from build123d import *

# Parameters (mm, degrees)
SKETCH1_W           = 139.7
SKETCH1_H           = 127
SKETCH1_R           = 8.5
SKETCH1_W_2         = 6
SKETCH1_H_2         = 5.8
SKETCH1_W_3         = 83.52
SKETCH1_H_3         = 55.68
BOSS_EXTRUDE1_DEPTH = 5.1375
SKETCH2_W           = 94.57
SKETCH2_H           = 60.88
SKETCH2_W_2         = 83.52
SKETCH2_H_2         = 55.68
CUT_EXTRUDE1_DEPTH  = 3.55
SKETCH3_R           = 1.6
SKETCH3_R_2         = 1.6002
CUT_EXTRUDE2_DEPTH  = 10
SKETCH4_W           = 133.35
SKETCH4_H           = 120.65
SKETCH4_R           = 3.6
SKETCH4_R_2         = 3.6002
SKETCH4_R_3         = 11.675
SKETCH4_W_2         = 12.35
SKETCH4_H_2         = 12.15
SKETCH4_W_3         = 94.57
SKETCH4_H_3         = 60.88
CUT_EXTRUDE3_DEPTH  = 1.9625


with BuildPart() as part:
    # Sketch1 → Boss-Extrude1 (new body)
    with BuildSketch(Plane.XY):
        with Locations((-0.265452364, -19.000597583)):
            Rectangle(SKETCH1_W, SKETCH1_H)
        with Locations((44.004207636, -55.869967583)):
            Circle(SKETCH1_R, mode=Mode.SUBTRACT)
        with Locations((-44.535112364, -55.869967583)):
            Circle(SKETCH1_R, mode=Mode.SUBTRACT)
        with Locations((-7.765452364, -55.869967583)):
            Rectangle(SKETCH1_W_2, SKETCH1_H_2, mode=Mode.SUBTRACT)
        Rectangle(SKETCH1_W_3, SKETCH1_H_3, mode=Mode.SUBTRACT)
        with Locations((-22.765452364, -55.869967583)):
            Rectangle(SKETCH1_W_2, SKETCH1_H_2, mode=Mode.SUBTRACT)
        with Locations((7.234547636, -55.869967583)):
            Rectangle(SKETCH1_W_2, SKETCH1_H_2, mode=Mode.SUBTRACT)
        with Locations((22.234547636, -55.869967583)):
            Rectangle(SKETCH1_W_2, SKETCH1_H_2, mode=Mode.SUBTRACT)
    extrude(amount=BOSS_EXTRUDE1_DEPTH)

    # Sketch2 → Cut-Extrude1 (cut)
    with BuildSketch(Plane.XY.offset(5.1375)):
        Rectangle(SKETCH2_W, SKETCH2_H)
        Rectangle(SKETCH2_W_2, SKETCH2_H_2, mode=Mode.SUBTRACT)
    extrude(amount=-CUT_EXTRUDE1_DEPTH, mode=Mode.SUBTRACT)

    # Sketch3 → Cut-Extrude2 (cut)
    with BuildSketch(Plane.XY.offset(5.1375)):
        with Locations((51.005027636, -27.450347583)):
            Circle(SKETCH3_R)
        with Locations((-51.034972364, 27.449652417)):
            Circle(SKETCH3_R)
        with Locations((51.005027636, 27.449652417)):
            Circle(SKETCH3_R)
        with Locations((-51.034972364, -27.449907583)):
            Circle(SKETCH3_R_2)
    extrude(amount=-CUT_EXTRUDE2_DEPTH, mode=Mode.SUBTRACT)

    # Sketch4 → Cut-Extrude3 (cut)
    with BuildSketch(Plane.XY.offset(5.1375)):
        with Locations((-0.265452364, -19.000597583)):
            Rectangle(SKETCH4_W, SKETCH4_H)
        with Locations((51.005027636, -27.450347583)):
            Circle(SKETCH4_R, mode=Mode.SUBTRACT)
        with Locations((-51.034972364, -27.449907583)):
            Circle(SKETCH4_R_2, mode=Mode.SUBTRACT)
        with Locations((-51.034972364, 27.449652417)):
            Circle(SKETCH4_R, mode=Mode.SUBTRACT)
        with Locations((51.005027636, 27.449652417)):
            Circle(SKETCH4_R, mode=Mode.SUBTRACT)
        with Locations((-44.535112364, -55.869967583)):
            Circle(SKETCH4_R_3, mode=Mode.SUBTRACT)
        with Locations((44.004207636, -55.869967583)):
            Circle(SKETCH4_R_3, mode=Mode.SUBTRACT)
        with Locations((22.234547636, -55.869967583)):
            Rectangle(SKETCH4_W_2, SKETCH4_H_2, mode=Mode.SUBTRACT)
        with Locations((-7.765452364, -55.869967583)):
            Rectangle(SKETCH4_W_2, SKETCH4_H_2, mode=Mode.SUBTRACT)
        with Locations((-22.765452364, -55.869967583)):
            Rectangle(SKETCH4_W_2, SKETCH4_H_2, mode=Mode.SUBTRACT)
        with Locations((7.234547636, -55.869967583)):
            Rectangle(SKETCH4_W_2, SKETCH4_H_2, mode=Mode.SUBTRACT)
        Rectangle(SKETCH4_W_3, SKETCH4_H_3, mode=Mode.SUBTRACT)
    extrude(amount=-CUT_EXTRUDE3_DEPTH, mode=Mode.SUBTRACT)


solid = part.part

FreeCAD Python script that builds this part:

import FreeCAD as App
import Part
import Sketcher
from FreeCAD import Vector
Q = App.Units.Quantity

doc = App.newDocument("Part")
params = doc.addObject("Spreadsheet::Sheet", "Params")
for row, (alias, value) in enumerate([
    ("sketch1_diameter", "17 mm"),
    ("sketch1_width", "6 mm"),
    ("sketch1_height", "127 mm"),
    ("sketch1_width2", "139.7 mm"),
    ("sketch1_height2", "5.8 mm"),
    ("pad1_length", "5.1375 mm"),
    ("sketch2_width", "94.57 mm"),
    ("sketch2_width2", "83.52 mm"),
    ("sketch2_height", "60.88 mm"),
    ("sketch2_height2", "55.68 mm"),
    ("pocket1_length", "3.55 mm"),
    ("sketch3_diameter", "3.2 mm"),
    ("pocket2_length", "10 mm"),
    ("sketch4_diameter", "7.2 mm"),
    ("sketch4_diameter2", "23.35 mm"),
    ("sketch4_width", "133.35 mm"),
    ("sketch4_width2", "12.35 mm"),
    ("sketch4_width3", "94.57 mm"),
    ("pocket3_length", "1.9625 mm"),
], start=1):
    params.set(f"A{row}", alias)
    params.set(f"B{row}", "=" + value)
    params.setAlias(f"B{row}", alias)

body = doc.addObject("PartDesign::Body", "Body")

# Sketch on XY plane
sketch1 = body.newObject("Sketcher::SketchObject", "Sketch")
sketch1.AttachmentSupport = (doc.getObject("XY_Plane"), [""])
sketch1.MapMode = "FlatFace"
sketch1.addGeometry([
    Part.LineSegment(Vector(-70.115452, 44.499402, 0), Vector(-70.115452, -82.500598, 0)),  # 0
    Part.LineSegment(Vector(-70.115452, -82.500598, 0), Vector(69.584548, -82.500598, 0)),  # 1
    Part.LineSegment(Vector(69.584548, -82.500598, 0), Vector(69.584548, 44.499402, 0)),  # 2
    Part.LineSegment(Vector(69.584548, 44.499402, 0), Vector(-70.115452, 44.499402, 0)),  # 3
    Part.Circle(Vector(-44.535112, -55.869968, 0), Vector(0, 0, 1), 8.5),  # 4
    Part.LineSegment(Vector(-19.765452, -58.769968, 0), Vector(-25.765452, -58.769968, 0)),  # 5
    Part.LineSegment(Vector(-25.765452, -58.769968, 0), Vector(-25.765452, -52.969968, 0)),  # 6
    Part.LineSegment(Vector(-25.765452, -52.969968, 0), Vector(-19.765452, -52.969968, 0)),  # 7
    Part.LineSegment(Vector(-19.765452, -52.969968, 0), Vector(-19.765452, -58.769968, 0)),  # 8
    Part.LineSegment(Vector(-4.765452, -58.769968, 0), Vector(-10.765452, -58.769968, 0)),  # 9
    Part.LineSegment(Vector(-10.765452, -58.769968, 0), Vector(-10.765452, -52.969968, 0)),  # 10
    Part.LineSegment(Vector(-10.765452, -52.969968, 0), Vector(-4.765452, -52.969968, 0)),  # 11
    Part.LineSegment(Vector(-4.765452, -52.969968, 0), Vector(-4.765452, -58.769968, 0)),  # 12
    Part.LineSegment(Vector(10.234548, -58.769968, 0), Vector(4.234548, -58.769968, 0)),  # 13
    Part.LineSegment(Vector(4.234548, -58.769968, 0), Vector(4.234548, -52.969968, 0)),  # 14
    Part.LineSegment(Vector(4.234548, -52.969968, 0), Vector(10.234548, -52.969968, 0)),  # 15
    Part.LineSegment(Vector(10.234548, -52.969968, 0), Vector(10.234548, -58.769968, 0)),  # 16
    Part.LineSegment(Vector(25.234548, -58.769968, 0), Vector(19.234548, -58.769968, 0)),  # 17
    Part.LineSegment(Vector(19.234548, -58.769968, 0), Vector(19.234548, -52.969968, 0)),  # 18
    Part.LineSegment(Vector(19.234548, -52.969968, 0), Vector(25.234548, -52.969968, 0)),  # 19
    Part.LineSegment(Vector(25.234548, -52.969968, 0), Vector(25.234548, -58.769968, 0)),  # 20
    Part.Circle(Vector(44.004208, -55.869968, 0), Vector(0, 0, 1), 8.5),  # 21
    Part.LineSegment(Vector(41.76, -27.84, 0), Vector(-41.76, -27.84, 0)),  # 22
    Part.LineSegment(Vector(-41.76, -27.84, 0), Vector(-41.76, 27.84, 0)),  # 23
    Part.LineSegment(Vector(-41.76, 27.84, 0), Vector(41.76, 27.84, 0)),  # 24
    Part.LineSegment(Vector(41.76, 27.84, 0), Vector(41.76, -27.84, 0)),  # 25
], False)
sketch1.addConstraint([
    Sketcher.Constraint("Coincident", 0, 2, 1, 1),
    Sketcher.Constraint("Coincident", 1, 2, 2, 1),
    Sketcher.Constraint("Coincident", 2, 2, 3, 1),
    Sketcher.Constraint("Coincident", 3, 2, 0, 1),
    Sketcher.Constraint("Coincident", 5, 2, 6, 1),
    Sketcher.Constraint("Coincident", 6, 2, 7, 1),
    Sketcher.Constraint("Coincident", 7, 2, 8, 1),
    Sketcher.Constraint("Coincident", 8, 2, 5, 1),
    Sketcher.Constraint("Coincident", 9, 2, 10, 1),
    Sketcher.Constraint("Coincident", 10, 2, 11, 1),
    Sketcher.Constraint("Coincident", 11, 2, 12, 1),
    Sketcher.Constraint("Coincident", 12, 2, 9, 1),
    Sketcher.Constraint("Coincident", 13, 2, 14, 1),
    Sketcher.Constraint("Coincident", 14, 2, 15, 1),
    Sketcher.Constraint("Coincident", 15, 2, 16, 1),
    Sketcher.Constraint("Coincident", 16, 2, 13, 1),
    Sketcher.Constraint("Coincident", 17, 2, 18, 1),
    Sketcher.Constraint("Coincident", 18, 2, 19, 1),
    Sketcher.Constraint("Coincident", 19, 2, 20, 1),
    Sketcher.Constraint("Coincident", 20, 2, 17, 1),
    Sketcher.Constraint("Coincident", 22, 2, 23, 1),
    Sketcher.Constraint("Coincident", 23, 2, 24, 1),
    Sketcher.Constraint("Coincident", 24, 2, 25, 1),
    Sketcher.Constraint("Coincident", 25, 2, 22, 1),
    Sketcher.Constraint("Vertical", 0),
    Sketcher.Constraint("Horizontal", 1),
    Sketcher.Constraint("Vertical", 2),
    Sketcher.Constraint("Horizontal", 3),
    Sketcher.Constraint("Horizontal", 5),
    Sketcher.Constraint("Vertical", 6),
    Sketcher.Constraint("Horizontal", 7),
    Sketcher.Constraint("Vertical", 8),
    Sketcher.Constraint("Horizontal", 9),
    Sketcher.Constraint("Vertical", 10),
    Sketcher.Constraint("Horizontal", 11),
    Sketcher.Constraint("Vertical", 12),
    Sketcher.Constraint("Horizontal", 13),
    Sketcher.Constraint("Vertical", 14),
    Sketcher.Constraint("Horizontal", 15),
    Sketcher.Constraint("Vertical", 16),
    Sketcher.Constraint("Horizontal", 17),
    Sketcher.Constraint("Vertical", 18),
    Sketcher.Constraint("Horizontal", 19),
    Sketcher.Constraint("Vertical", 20),
    Sketcher.Constraint("Horizontal", 22),
    Sketcher.Constraint("Vertical", 23),
    Sketcher.Constraint("Horizontal", 24),
    Sketcher.Constraint("Vertical", 25),
    Sketcher.Constraint("Equal", 4, 21),
    Sketcher.Constraint("Symmetric", 22, 2, 24, 2, -1, 1),
    Sketcher.Constraint("Horizontal", 4, 3, 21, 3),
    Sketcher.Constraint("Horizontal", 8, 2, 9, 2),
    Sketcher.Constraint("Horizontal", 7, 2, 10, 2),
    Sketcher.Constraint("Horizontal", 12, 2, 13, 2),
    Sketcher.Constraint("Horizontal", 11, 2, 14, 2),
    Sketcher.Constraint("Horizontal", 16, 2, 17, 2),
    Sketcher.Constraint("Horizontal", 15, 2, 18, 2),
    Sketcher.Constraint("Equal", 7, 9),
    Sketcher.Constraint("Equal", 11, 13),
    Sketcher.Constraint("Equal", 15, 17),
    Sketcher.Constraint("Diameter", 4, Q("17 mm")),
    Sketcher.Constraint("DistanceX", 5, 2, 5, 1, Q("6 mm")),
    Sketcher.Constraint("DistanceY", 0, 2, 0, 1, Q("127 mm")),
    Sketcher.Constraint("DistanceX", 1, 1, 1, 2, Q("139.7 mm")),
    Sketcher.Constraint("DistanceY", 6, 1, 6, 2, Q("5.8 mm")),
    Sketcher.Constraint("DistanceX", 8, 2, 9, 2, Q("9 mm")),
    Sketcher.Constraint("DistanceX", 12, 2, 13, 2, Q("9 mm")),
    Sketcher.Constraint("DistanceX", 16, 2, 17, 2, Q("9 mm")),
    Sketcher.Constraint("DistanceX", 22, 2, 22, 1, Q("83.52 mm")),
    Sketcher.Constraint("DistanceY", 23, 1, 23, 2, Q("55.68 mm")),
    Sketcher.Constraint("DistanceY", 5, 2, 4, 3, Q("2.9 mm")),
    Sketcher.Constraint("DistanceX", 0, 2, 5, 2, Q("44.35 mm")),
    Sketcher.Constraint("DistanceX", 4, 3, 21, 3, Q("88.53932 mm")),
    Sketcher.Constraint("DistanceX", 0, 2, 4, 3, Q("25.58034 mm")),
    Sketcher.Constraint("DistanceY", 0, 2, 4, 3, Q("26.63063 mm")),
    Sketcher.Constraint("DistanceX", 4, 3, -1, 1, Q("44.535112 mm")),
    Sketcher.Constraint("DistanceY", 4, 3, -1, 1, Q("55.869968 mm")),
])
sketch1.setExpression("Constraints[60]", "Params.sketch1_diameter")
sketch1.setExpression("Constraints[61]", "Params.sketch1_width")
sketch1.setExpression("Constraints[62]", "Params.sketch1_height")
sketch1.setExpression("Constraints[63]", "Params.sketch1_width2")
sketch1.setExpression("Constraints[64]", "Params.sketch1_height2")
pad1 = body.newObject("PartDesign::Pad", "Pad")
pad1.Profile = sketch1
pad1.setExpression("Length", "Params.pad1_length")

# Sketch on XY plane
sketch2 = body.newObject("Sketcher::SketchObject", "Sketch001")
sketch2.AttachmentSupport = (doc.getObject("XY_Plane"), [""])
sketch2.MapMode = "FlatFace"
sketch2.AttachmentOffset = App.Placement(Vector(0, 0, 5.1375), App.Rotation())
sketch2.addGeometry([
    Part.LineSegment(Vector(-47.285, 30.44, 0), Vector(-47.285, -30.44, 0)),  # 0
    Part.LineSegment(Vector(-47.285, -30.44, 0), Vector(47.285, -30.44, 0)),  # 1
    Part.LineSegment(Vector(47.285, -30.44, 0), Vector(47.285, 30.44, 0)),  # 2
    Part.LineSegment(Vector(47.285, 30.44, 0), Vector(-47.285, 30.44, 0)),  # 3
    Part.LineSegment(Vector(41.76, -27.84, 0), Vector(-41.76, -27.84, 0)),  # 4
    Part.LineSegment(Vector(-41.76, -27.84, 0), Vector(-41.76, 27.84, 0)),  # 5
    Part.LineSegment(Vector(-41.76, 27.84, 0), Vector(41.76, 27.84, 0)),  # 6
    Part.LineSegment(Vector(41.76, 27.84, 0), Vector(41.76, -27.84, 0)),  # 7
], False)
sketch2.addConstraint([
    Sketcher.Constraint("Coincident", 0, 2, 1, 1),
    Sketcher.Constraint("Coincident", 1, 2, 2, 1),
    Sketcher.Constraint("Coincident", 2, 2, 3, 1),
    Sketcher.Constraint("Coincident", 3, 2, 0, 1),
    Sketcher.Constraint("Coincident", 4, 2, 5, 1),
    Sketcher.Constraint("Coincident", 5, 2, 6, 1),
    Sketcher.Constraint("Coincident", 6, 2, 7, 1),
    Sketcher.Constraint("Coincident", 7, 2, 4, 1),
    Sketcher.Constraint("Vertical", 0),
    Sketcher.Constraint("Horizontal", 1),
    Sketcher.Constraint("Vertical", 2),
    Sketcher.Constraint("Horizontal", 3),
    Sketcher.Constraint("Horizontal", 4),
    Sketcher.Constraint("Vertical", 5),
    Sketcher.Constraint("Horizontal", 6),
    Sketcher.Constraint("Vertical", 7),
    Sketcher.Constraint("Symmetric", 0, 2, 2, 2, -1, 1),
    Sketcher.Constraint("Symmetric", 4, 2, 6, 2, -1, 1),
    Sketcher.Constraint("DistanceX", 1, 1, 1, 2, Q("94.57 mm")),
    Sketcher.Constraint("DistanceX", 4, 2, 4, 1, Q("83.52 mm")),
    Sketcher.Constraint("DistanceY", 0, 2, 0, 1, Q("60.88 mm")),
    Sketcher.Constraint("DistanceY", 5, 1, 5, 2, Q("55.68 mm")),
])
sketch2.setExpression("Constraints[18]", "Params.sketch2_width")
sketch2.setExpression("Constraints[19]", "Params.sketch2_width2")
sketch2.setExpression("Constraints[20]", "Params.sketch2_height")
sketch2.setExpression("Constraints[21]", "Params.sketch2_height2")
pocket1 = body.newObject("PartDesign::Pocket", "Pocket")
pocket1.Profile = sketch2
pocket1.setExpression("Length", "Params.pocket1_length")

# Sketch on XY plane
sketch3 = body.newObject("Sketcher::SketchObject", "Sketch002")
sketch3.AttachmentSupport = (doc.getObject("XY_Plane"), [""])
sketch3.MapMode = "FlatFace"
sketch3.AttachmentOffset = App.Placement(Vector(0, 0, 5.1375), App.Rotation())
sketch3.addGeometry([
    Part.Circle(Vector(51.005028, -27.450348, 0), Vector(0, 0, 1), 1.6),
    Part.Circle(Vector(-51.034972, 27.449652, 0), Vector(0, 0, 1), 1.6),
    Part.Circle(Vector(51.005028, 27.449652, 0), Vector(0, 0, 1), 1.6),
    Part.Circle(Vector(-51.034972, -27.449908, 0), Vector(0, 0, 1), 1.6002),
], False)
sketch3.addConstraint([
    Sketcher.Constraint("Equal", 0, 1),
    Sketcher.Constraint("Equal", 1, 2),
    Sketcher.Constraint("Horizontal", 1, 3, 2, 3),
    Sketcher.Constraint("Vertical", 0, 3, 2, 3),
    Sketcher.Constraint("Vertical", 1, 3, 3, 3),
    Sketcher.Constraint("Diameter", 0, Q("3.2 mm")),
    Sketcher.Constraint("Diameter", 3, Q("3.2004 mm")),
    Sketcher.Constraint("DistanceY", 0, 3, 1, 3, Q("54.9 mm")),
    Sketcher.Constraint("DistanceX", 1, 3, 0, 3, Q("102.04 mm")),
    Sketcher.Constraint("DistanceY", 3, 3, 1, 3, Q("54.89956 mm")),
    Sketcher.Constraint("DistanceX", -1, 1, 0, 3, Q("51.005028 mm")),
    Sketcher.Constraint("DistanceY", 0, 3, -1, 1, Q("27.450348 mm")),
])
sketch3.setExpression("Constraints[5]", "Params.sketch3_diameter")
pocket2 = body.newObject("PartDesign::Pocket", "Pocket001")
pocket2.Profile = sketch3
pocket2.setExpression("Length", "Params.pocket2_length")

# Sketch on XY plane
sketch4 = body.newObject("Sketcher::SketchObject", "Sketch003")
sketch4.AttachmentSupport = (doc.getObject("XY_Plane"), [""])
sketch4.MapMode = "FlatFace"
sketch4.AttachmentOffset = App.Placement(Vector(0, 0, 5.1375), App.Rotation())
sketch4.addGeometry([
    Part.LineSegment(Vector(-66.940452, 41.324402, 0), Vector(-66.940452, -79.325598, 0)),  # 0
    Part.LineSegment(Vector(-66.940452, -79.325598, 0), Vector(66.409548, -79.325598, 0)),  # 1
    Part.LineSegment(Vector(66.409548, -79.325598, 0), Vector(66.409548, 41.324402, 0)),  # 2
    Part.LineSegment(Vector(66.409548, 41.324402, 0), Vector(-66.940452, 41.324402, 0)),  # 3
    Part.Circle(Vector(-44.535112, -55.869968, 0), Vector(0, 0, 1), 11.675),  # 4
    Part.LineSegment(Vector(-16.590452, -61.944968, 0), Vector(-28.940452, -61.944968, 0)),  # 5
    Part.LineSegment(Vector(-28.940452, -61.944968, 0), Vector(-28.940452, -49.794968, 0)),  # 6
    Part.LineSegment(Vector(-28.940452, -49.794968, 0), Vector(-16.590452, -49.794968, 0)),  # 7
    Part.LineSegment(Vector(-16.590452, -49.794968, 0), Vector(-16.590452, -61.944968, 0)),  # 8
    Part.LineSegment(Vector(-1.590452, -61.944968, 0), Vector(-13.940452, -61.944968, 0)),  # 9
    Part.LineSegment(Vector(-13.940452, -61.944968, 0), Vector(-13.940452, -49.794968, 0)),  # 10
    Part.LineSegment(Vector(-13.940452, -49.794968, 0), Vector(-1.590452, -49.794968, 0)),  # 11
    Part.LineSegment(Vector(-1.590452, -49.794968, 0), Vector(-1.590452, -61.944968, 0)),  # 12
    Part.Circle(Vector(-51.034972, -27.449908, 0), Vector(0, 0, 1), 3.6002),  # 13
    Part.LineSegment(Vector(13.409548, -61.944968, 0), Vector(1.059548, -61.944968, 0)),  # 14
    Part.LineSegment(Vector(1.059548, -61.944968, 0), Vector(1.059548, -49.794968, 0)),  # 15
    Part.LineSegment(Vector(1.059548, -49.794968, 0), Vector(13.409548, -49.794968, 0)),  # 16
    Part.LineSegment(Vector(13.409548, -49.794968, 0), Vector(13.409548, -61.944968, 0)),  # 17
    Part.LineSegment(Vector(28.409548, -61.944968, 0), Vector(16.059548, -61.944968, 0)),  # 18
    Part.LineSegment(Vector(16.059548, -61.944968, 0), Vector(16.059548, -49.794968, 0)),  # 19
    Part.LineSegment(Vector(16.059548, -49.794968, 0), Vector(28.409548, -49.794968, 0)),  # 20
    Part.LineSegment(Vector(28.409548, -49.794968, 0), Vector(28.409548, -61.944968, 0)),  # 21
    Part.Circle(Vector(44.004208, -55.869968, 0), Vector(0, 0, 1), 11.675),  # 22
    Part.Circle(Vector(51.005028, -27.450348, 0), Vector(0, 0, 1), 3.6),  # 23
    Part.Circle(Vector(-51.034972, 27.449652, 0), Vector(0, 0, 1), 3.6),  # 24
    Part.LineSegment(Vector(47.285, -30.44, 0), Vector(-47.285, -30.44, 0)),  # 25
    Part.LineSegment(Vector(-47.285, -30.44, 0), Vector(-47.285, 30.44, 0)),  # 26
    Part.LineSegment(Vector(-47.285, 30.44, 0), Vector(47.285, 30.44, 0)),  # 27
    Part.LineSegment(Vector(47.285, 30.44, 0), Vector(47.285, -30.44, 0)),  # 28
    Part.Circle(Vector(51.005028, 27.449652, 0), Vector(0, 0, 1), 3.6),  # 29
], False)
sketch4.addConstraint([
    Sketcher.Constraint("Coincident", 0, 2, 1, 1),
    Sketcher.Constraint("Coincident", 1, 2, 2, 1),
    Sketcher.Constraint("Coincident", 2, 2, 3, 1),
    Sketcher.Constraint("Coincident", 3, 2, 0, 1),
    Sketcher.Constraint("Coincident", 5, 2, 6, 1),
    Sketcher.Constraint("Coincident", 6, 2, 7, 1),
    Sketcher.Constraint("Coincident", 7, 2, 8, 1),
    Sketcher.Constraint("Coincident", 8, 2, 5, 1),
    Sketcher.Constraint("Coincident", 9, 2, 10, 1),
    Sketcher.Constraint("Coincident", 10, 2, 11, 1),
    Sketcher.Constraint("Coincident", 11, 2, 12, 1),
    Sketcher.Constraint("Coincident", 12, 2, 9, 1),
    Sketcher.Constraint("Coincident", 14, 2, 15, 1),
    Sketcher.Constraint("Coincident", 15, 2, 16, 1),
    Sketcher.Constraint("Coincident", 16, 2, 17, 1),
    Sketcher.Constraint("Coincident", 17, 2, 14, 1),
    Sketcher.Constraint("Coincident", 18, 2, 19, 1),
    Sketcher.Constraint("Coincident", 19, 2, 20, 1),
    Sketcher.Constraint("Coincident", 20, 2, 21, 1),
    Sketcher.Constraint("Coincident", 21, 2, 18, 1),
    Sketcher.Constraint("Coincident", 25, 2, 26, 1),
    Sketcher.Constraint("Coincident", 26, 2, 27, 1),
    Sketcher.Constraint("Coincident", 27, 2, 28, 1),
    Sketcher.Constraint("Coincident", 28, 2, 25, 1),
    Sketcher.Constraint("Vertical", 0),
    Sketcher.Constraint("Horizontal", 1),
    Sketcher.Constraint("Vertical", 2),
    Sketcher.Constraint("Horizontal", 3),
    Sketcher.Constraint("Horizontal", 5),
    Sketcher.Constraint("Vertical", 6),
    Sketcher.Constraint("Horizontal", 7),
    Sketcher.Constraint("Vertical", 8),
    Sketcher.Constraint("Horizontal", 9),
    Sketcher.Constraint("Vertical", 10),
    Sketcher.Constraint("Horizontal", 11),
    Sketcher.Constraint("Vertical", 12),
    Sketcher.Constraint("Horizontal", 14),
    Sketcher.Constraint("Vertical", 15),
    Sketcher.Constraint("Horizontal", 16),
    Sketcher.Constraint("Vertical", 17),
    Sketcher.Constraint("Horizontal", 18),
    Sketcher.Constraint("Vertical", 19),
    Sketcher.Constraint("Horizontal", 20),
    Sketcher.Constraint("Vertical", 21),
    Sketcher.Constraint("Horizontal", 25),
    Sketcher.Constraint("Vertical", 26),
    Sketcher.Constraint("Horizontal", 27),
    Sketcher.Constraint("Vertical", 28),
    Sketcher.Constraint("Equal", 4, 22),
    Sketcher.Constraint("Equal", 23, 24),
    Sketcher.Constraint("Equal", 24, 29),
    Sketcher.Constraint("Symmetric", 25, 2, 27, 2, -1, 1),
    Sketcher.Constraint("Horizontal", 4, 3, 22, 3),
    Sketcher.Constraint("Horizontal", 24, 3, 29, 3),
    Sketcher.Constraint("Horizontal", 8, 2, 9, 2),
    Sketcher.Constraint("Horizontal", 7, 2, 10, 2),
    Sketcher.Constraint("Horizontal", 12, 2, 14, 2),
    Sketcher.Constraint("Horizontal", 11, 2, 15, 2),
    Sketcher.Constraint("Horizontal", 17, 2, 18, 2),
    Sketcher.Constraint("Horizontal", 16, 2, 19, 2),
    Sketcher.Constraint("Vertical", 13, 3, 24, 3),
    Sketcher.Constraint("Vertical", 23, 3, 29, 3),
    Sketcher.Constraint("Equal", 7, 9),
    Sketcher.Constraint("Equal", 11, 14),
    Sketcher.Constraint("Equal", 16, 18),
    Sketcher.Constraint("Diameter", 23, Q("7.2 mm")),
    Sketcher.Constraint("Diameter", 4, Q("23.35 mm")),
    Sketcher.Constraint("DistanceX", 0, 2, 5, 2, Q("38 mm")),
    Sketcher.Constraint("DistanceX", 5, 2, 9, 2, Q("15 mm")),
    Sketcher.Constraint("DistanceX", 9, 2, 14, 2, Q("15 mm")),
    Sketcher.Constraint("DistanceX", 14, 2, 18, 2, Q("15 mm")),
    Sketcher.Constraint("Diameter", 13, Q("7.2004 mm")),
    Sketcher.Constraint("DistanceX", 1, 1, 1, 2, Q("133.35 mm")),
    Sketcher.Constraint("DistanceX", 5, 2, 5, 1, Q("12.35 mm")),
    Sketcher.Constraint("DistanceX", 25, 2, 25, 1, Q("94.57 mm")),
    Sketcher.Constraint("DistanceY", 0, 2, 0, 1, Q("120.65 mm")),
    Sketcher.Constraint("DistanceY", 6, 1, 6, 2, Q("12.15 mm")),
    Sketcher.Constraint("DistanceY", 26, 1, 26, 2, Q("60.88 mm")),
    Sketcher.Constraint("DistanceY", 23, 3, 24, 3, Q("54.9 mm")),
    Sketcher.Constraint("DistanceX", 13, 3, 23, 3, Q("102.04 mm")),
    Sketcher.Constraint("DistanceY", 5, 2, 4, 3, Q("6.075 mm")),
    Sketcher.Constraint("DistanceX", 13, 3, 4, 3, Q("6.49986 mm")),
    Sketcher.Constraint("DistanceY", 4, 3, 13, 3, Q("28.42006 mm")),
    Sketcher.Constraint("DistanceX", 4, 3, 22, 3, Q("88.53932 mm")),
    Sketcher.Constraint("DistanceY", 22, 3, 23, 3, Q("28.41962 mm")),
    Sketcher.Constraint("DistanceX", 0, 2, 4, 3, Q("22.40534 mm")),
    Sketcher.Constraint("DistanceY", 0, 2, 4, 3, Q("23.45563 mm")),
    Sketcher.Constraint("DistanceX", 4, 3, -1, 1, Q("44.535112 mm")),
    Sketcher.Constraint("DistanceY", 4, 3, -1, 1, Q("55.869968 mm")),
])
sketch4.setExpression("Constraints[65]", "Params.sketch4_diameter")
sketch4.setExpression("Constraints[66]", "Params.sketch4_diameter2")
sketch4.setExpression("Constraints[72]", "Params.sketch4_width")
sketch4.setExpression("Constraints[73]", "Params.sketch4_width2")
sketch4.setExpression("Constraints[74]", "Params.sketch4_width3")
pocket3 = body.newObject("PartDesign::Pocket", "Pocket002")
pocket3.Profile = sketch4
pocket3.setExpression("Length", "Params.pocket3_length")

doc.recompute()
